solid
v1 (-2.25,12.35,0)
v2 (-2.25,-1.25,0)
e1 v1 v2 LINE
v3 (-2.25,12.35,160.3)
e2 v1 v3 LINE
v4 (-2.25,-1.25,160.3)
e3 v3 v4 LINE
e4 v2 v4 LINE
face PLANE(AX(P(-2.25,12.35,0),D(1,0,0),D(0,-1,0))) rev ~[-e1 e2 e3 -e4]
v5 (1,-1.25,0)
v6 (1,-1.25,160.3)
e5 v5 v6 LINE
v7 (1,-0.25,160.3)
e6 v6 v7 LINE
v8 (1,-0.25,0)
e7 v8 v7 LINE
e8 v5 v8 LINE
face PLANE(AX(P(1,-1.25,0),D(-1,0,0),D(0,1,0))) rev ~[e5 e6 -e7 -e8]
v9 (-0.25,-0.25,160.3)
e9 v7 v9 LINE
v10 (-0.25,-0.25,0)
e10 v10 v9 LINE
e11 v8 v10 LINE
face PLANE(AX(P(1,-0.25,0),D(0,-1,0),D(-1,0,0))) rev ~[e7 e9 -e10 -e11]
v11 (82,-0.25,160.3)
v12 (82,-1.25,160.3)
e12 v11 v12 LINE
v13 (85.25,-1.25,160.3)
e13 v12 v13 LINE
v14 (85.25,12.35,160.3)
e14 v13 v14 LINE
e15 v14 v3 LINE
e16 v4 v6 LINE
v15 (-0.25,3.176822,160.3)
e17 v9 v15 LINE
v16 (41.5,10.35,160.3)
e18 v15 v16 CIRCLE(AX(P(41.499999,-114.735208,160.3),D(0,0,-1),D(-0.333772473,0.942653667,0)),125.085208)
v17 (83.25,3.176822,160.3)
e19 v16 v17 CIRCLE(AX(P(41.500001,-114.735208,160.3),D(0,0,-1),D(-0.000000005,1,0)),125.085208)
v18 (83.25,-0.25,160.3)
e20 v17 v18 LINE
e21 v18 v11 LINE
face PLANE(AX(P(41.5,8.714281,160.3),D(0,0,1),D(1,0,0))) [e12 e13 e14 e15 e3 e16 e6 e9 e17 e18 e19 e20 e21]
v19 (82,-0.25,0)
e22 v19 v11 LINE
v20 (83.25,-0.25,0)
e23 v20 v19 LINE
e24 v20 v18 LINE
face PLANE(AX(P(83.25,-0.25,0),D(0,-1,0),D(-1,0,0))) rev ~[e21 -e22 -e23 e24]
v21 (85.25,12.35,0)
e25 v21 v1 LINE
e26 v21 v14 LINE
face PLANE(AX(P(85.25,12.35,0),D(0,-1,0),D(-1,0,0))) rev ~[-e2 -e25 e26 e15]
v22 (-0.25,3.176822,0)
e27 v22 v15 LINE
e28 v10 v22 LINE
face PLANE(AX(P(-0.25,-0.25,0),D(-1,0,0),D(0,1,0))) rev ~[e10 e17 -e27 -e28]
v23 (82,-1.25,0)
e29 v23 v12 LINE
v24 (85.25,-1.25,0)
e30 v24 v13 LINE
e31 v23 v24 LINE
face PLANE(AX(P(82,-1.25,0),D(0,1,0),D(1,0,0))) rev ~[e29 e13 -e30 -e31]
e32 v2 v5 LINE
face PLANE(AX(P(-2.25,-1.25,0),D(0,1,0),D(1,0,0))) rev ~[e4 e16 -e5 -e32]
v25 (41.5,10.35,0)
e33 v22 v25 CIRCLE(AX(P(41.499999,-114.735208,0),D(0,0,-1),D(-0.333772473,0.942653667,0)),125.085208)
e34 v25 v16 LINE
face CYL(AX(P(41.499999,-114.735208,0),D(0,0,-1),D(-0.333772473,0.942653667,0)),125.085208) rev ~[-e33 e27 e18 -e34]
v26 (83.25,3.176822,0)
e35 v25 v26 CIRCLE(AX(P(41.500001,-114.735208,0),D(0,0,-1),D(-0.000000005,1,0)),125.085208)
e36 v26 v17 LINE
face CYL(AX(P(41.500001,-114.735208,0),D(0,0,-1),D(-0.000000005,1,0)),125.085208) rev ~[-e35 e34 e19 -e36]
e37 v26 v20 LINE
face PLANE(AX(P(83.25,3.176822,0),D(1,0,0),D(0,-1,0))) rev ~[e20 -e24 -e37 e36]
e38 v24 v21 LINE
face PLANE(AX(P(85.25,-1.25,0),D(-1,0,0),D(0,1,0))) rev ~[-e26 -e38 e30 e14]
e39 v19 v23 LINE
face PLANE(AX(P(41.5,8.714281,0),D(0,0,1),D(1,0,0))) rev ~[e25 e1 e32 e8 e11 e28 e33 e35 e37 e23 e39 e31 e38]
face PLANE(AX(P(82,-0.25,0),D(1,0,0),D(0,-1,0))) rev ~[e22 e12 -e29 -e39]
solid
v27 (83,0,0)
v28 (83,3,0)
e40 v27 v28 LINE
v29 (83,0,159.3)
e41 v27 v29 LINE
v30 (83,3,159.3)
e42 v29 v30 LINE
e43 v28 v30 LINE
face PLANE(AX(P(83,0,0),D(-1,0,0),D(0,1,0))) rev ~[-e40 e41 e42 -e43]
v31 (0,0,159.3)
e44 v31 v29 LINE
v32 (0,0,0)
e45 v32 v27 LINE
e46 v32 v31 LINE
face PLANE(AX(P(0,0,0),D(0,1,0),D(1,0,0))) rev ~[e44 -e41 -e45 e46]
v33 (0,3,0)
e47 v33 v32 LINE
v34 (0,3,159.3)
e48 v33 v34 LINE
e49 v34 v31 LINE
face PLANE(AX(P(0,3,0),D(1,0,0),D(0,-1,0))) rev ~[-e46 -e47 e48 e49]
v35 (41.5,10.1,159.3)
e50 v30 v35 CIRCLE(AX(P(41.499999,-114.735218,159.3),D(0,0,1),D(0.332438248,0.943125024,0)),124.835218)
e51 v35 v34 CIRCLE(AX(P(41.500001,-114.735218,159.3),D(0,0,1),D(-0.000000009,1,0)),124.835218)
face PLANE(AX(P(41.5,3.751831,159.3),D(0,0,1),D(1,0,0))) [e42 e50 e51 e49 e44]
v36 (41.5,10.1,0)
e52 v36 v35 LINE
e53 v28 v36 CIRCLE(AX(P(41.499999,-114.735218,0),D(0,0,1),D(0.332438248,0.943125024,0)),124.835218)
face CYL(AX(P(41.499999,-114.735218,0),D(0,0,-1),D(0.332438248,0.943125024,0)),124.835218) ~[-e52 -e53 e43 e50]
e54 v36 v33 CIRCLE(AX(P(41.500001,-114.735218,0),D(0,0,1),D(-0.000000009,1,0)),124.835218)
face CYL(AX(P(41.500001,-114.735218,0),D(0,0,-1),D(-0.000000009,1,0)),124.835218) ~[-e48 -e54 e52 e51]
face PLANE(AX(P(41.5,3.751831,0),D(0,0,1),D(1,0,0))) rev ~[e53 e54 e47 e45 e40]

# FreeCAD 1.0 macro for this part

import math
import FreeCAD as App
import Part
import Sketcher
from FreeCAD import Vector
Q = App.Units.Quantity

doc = App.newDocument("Part")
params = doc.addObject("Spreadsheet::Sheet", "Params")
for row, (alias, value) in enumerate([
    ("sketch1_width", "83 mm"),
    ("sketch1_height", "3 mm"),
    ("pad1_length", "159.3 mm"),
    ("sketch2_height", "1 mm"),
    ("sketch2_width", "87.5 mm"),
    ("sketch2_height2", "13.6 mm"),
    ("pad2_length", "160.3 mm"),
], start=1):
    params.set(f"A{row}", alias)
    params.set(f"B{row}", "=" + value)
    params.setAlias(f"B{row}", alias)

body = doc.addObject("PartDesign::Body", "Body")

# Sketch on XY plane
sketch1 = body.newObject("Sketcher::SketchObject", "Sketch")
sketch1.AttachmentSupport = (doc.getObject("XY_Plane"), [""])
sketch1.MapMode = "FlatFace"
sketch1.addGeometry(Part.LineSegment(Vector(0, 3, 0), Vector(0, 0, 0)), False)
sketch1.addGeometry(Part.LineSegment(Vector(0, 0, 0), Vector(83, 0, 0)), False)
sketch1.addGeometry(Part.LineSegment(Vector(83, 0, 0), Vector(83, 3, 0)), False)
sketch1.addGeometry(Part.ArcOfCircle(Part.Circle(Vector(41.5, -114.7, 0), Vector(0, 0, 1), 124.8), math.radians(70.58), math.radians(90)), False)
sketch1.addGeometry(Part.ArcOfCircle(Part.Circle(Vector(41.5, -114.7, 0), Vector(0, 0, 1), 124.8), math.radians(90), math.radians(109.42)), False)
sketch1.addConstraint(Sketcher.Constraint("Coincident", 0, 2, 1, 1))
sketch1.addConstraint(Sketcher.Constraint("Coincident", 1, 2, 2, 1))
sketch1.addConstraint(Sketcher.Constraint("Coincident", 2, 2, 3, 1))
sketch1.addConstraint(Sketcher.Constraint("Tangent", 3, 2, 4, 1))
sketch1.addConstraint(Sketcher.Constraint("Coincident", 4, 2, 0, 1))
sketch1.addConstraint(Sketcher.Constraint("Vertical", 0))
sketch1.addConstraint(Sketcher.Constraint("Horizontal", 1))
sketch1.addConstraint(Sketcher.Constraint("Vertical", 2))
sketch1.addConstraint(Sketcher.Constraint("Coincident", 0, 2, -1, 1))
sketch1.addConstraint(Sketcher.Constraint("Equal", 3, 4))
sketch1.addConstraint(Sketcher.Constraint("Horizontal", 2, 2, 4, 2))
sketch1.addConstraint(Sketcher.Constraint("Vertical", 4, 3, 3, 2))
sketch1.addConstraint(Sketcher.Constraint("DistanceX", 1, 1, 1, 2, Q("83 mm")))
sketch1.addConstraint(Sketcher.Constraint("DistanceY", 0, 2, 0, 1, Q("3 mm")))
sketch1.addConstraint(Sketcher.Constraint("DistanceY", -1, 1, 3, 2, Q("10.1 mm")))
sketch1.setExpression("Constraints[12]", "Params.sketch1_width")
sketch1.setExpression("Constraints[13]", "Params.sketch1_height")
pad1 = body.newObject("PartDesign::Pad", "Pad")
pad1.Profile = sketch1
pad1.setExpression("Length", "Params.pad1_length")
body2 = doc.addObject("PartDesign::Body", "Body001")

# Sketch on XY plane
sketch2 = body2.newObject("Sketcher::SketchObject", "Sketch001")
sketch2.AttachmentSupport = (doc.getObject("XY_Plane001"), [""])
sketch2.MapMode = "FlatFace"
sketch2.addGeometry(Part.ArcOfCircle(Part.Circle(Vector(41.5, -114.7, 0), Vector(0, 0, 1), 125.1), math.radians(90), math.radians(109.5)), False)
sketch2.addGeometry(Part.ArcOfCircle(Part.Circle(Vector(41.5, -114.7, 0), Vector(0, 0, 1), 125.1), math.radians(70.5), math.radians(90)), False)
sketch2.addGeometry(Part.LineSegment(Vector(83.2, 3.2, 0), Vector(83.2, -0.2, 0)), False)
sketch2.addGeometry(Part.LineSegment(Vector(83.2, -0.2, 0), Vector(82, -0.2, 0)), False)
sketch2.addGeometry(Part.LineSegment(Vector(82, -0.2, 0), Vector(82, -1.2, 0)), False)
sketch2.addGeometry(Part.LineSegment(Vector(82, -1.2, 0), Vector(85.2, -1.2, 0)), False)
sketch2.addGeometry(Part.LineSegment(Vector(85.2, -1.2, 0), Vector(85.2, 12.3, 0)), False)
sketch2.addGeometry(Part.LineSegment(Vector(85.2, 12.3, 0), Vector(-2.2, 12.3, 0)), False)
sketch2.addGeometry(Part.LineSegment(Vector(-2.2, 12.3, 0), Vector(-2.2, -1.2, 0)), False)
sketch2.addGeometry(Part.LineSegment(Vector(-2.2, -1.2, 0), Vector(1, -1.2, 0)), False)
sketch2.addGeometry(Part.LineSegment(Vector(1, -1.2, 0), Vector(1, -0.2, 0)), False)
sketch2.addGeometry(Part.LineSegment(Vector(1, -0.2, 0), Vector(-0.2, -0.2, 0)), False)
sketch2.addGeometry(Part.LineSegment(Vector(-0.2, -0.2, 0), Vector(-0.2, 3.2, 0)), False)
sketch2.addConstraint(Sketcher.Constraint("Tangent", 0, 1, 1, 2))
sketch2.addConstraint(Sketcher.Constraint("Coincident", 1, 1, 2, 1))
sketch2.addConstraint(Sketcher.Constraint("Coincident", 2, 2, 3, 1))
sketch2.addConstraint(Sketcher.Constraint("Coincident", 3, 2, 4, 1))
sketch2.addConstraint(Sketcher.Constraint("Coincident", 4, 2, 5, 1))
sketch2.addConstraint(Sketcher.Constraint("Coincident", 5, 2, 6, 1))
sketch2.addConstraint(Sketcher.Constraint("Coincident", 6, 2, 7, 1))
sketch2.addConstraint(Sketcher.Constraint("Coincident", 7, 2, 8, 1))
sketch2.addConstraint(Sketcher.Constraint("Coincident", 8, 2, 9, 1))
sketch2.addConstraint(Sketcher.Constraint("Coincident", 9, 2, 10, 1))
sketch2.addConstraint(Sketcher.Constraint("Coincident", 10, 2, 11, 1))
sketch2.addConstraint(Sketcher.Constraint("Coincident", 11, 2, 12, 1))
sketch2.addConstraint(Sketcher.Constraint("Coincident", 12, 2, 0, 2))
sketch2.addConstraint(Sketcher.Constraint("Vertical", 2))
sketch2.addConstraint(Sketcher.Constraint("Horizontal", 3))
sketch2.addConstraint(Sketcher.Constraint("Vertical", 4))
sketch2.addConstraint(Sketcher.Constraint("Horizontal", 5))
sketch2.addConstraint(Sketcher.Constraint("Vertical", 6))
sketch2.addConstraint(Sketcher.Constraint("Horizontal", 7))
sketch2.addConstraint(Sketcher.Constraint("Vertical", 8))
sketch2.addConstraint(Sketcher.Constraint("Horizontal", 9))
sketch2.addConstraint(Sketcher.Constraint("Vertical", 10))
sketch2.addConstraint(Sketcher.Constraint("Horizontal", 11))
sketch2.addConstraint(Sketcher.Constraint("Vertical", 12))
sketch2.addConstraint(Sketcher.Constraint("Equal", 0, 1))
sketch2.addConstraint(Sketcher.Constraint("Horizontal", 5, 2, 8, 2))
sketch2.addConstraint(Sketcher.Constraint("Horizontal", 3, 2, 10, 2))
sketch2.addConstraint(Sketcher.Constraint("Horizontal", 1, 1, 12, 2))
sketch2.addConstraint(Sketcher.Constraint("Vertical", 1, 3, 0, 1))
sketch2.addConstraint(Sketcher.Constraint("Equal", 5, 9))
sketch2.addConstraint(Sketcher.Constraint("Equal", 3, 11))
sketch2.addConstraint(Sketcher.Constraint("DistanceY", 4, 2, 4, 1, Q("1 mm")))
sketch2.addConstraint(Sketcher.Constraint("DistanceX", 7, 2, 7, 1, Q("87.5 mm")))
sketch2.addConstraint(Sketcher.Constraint("DistanceY", 6, 1, 6, 2, Q("13.6 mm")))
sketch2.addConstraint(Sketcher.Constraint("DistanceX", -1, 1, 3, 2, Q("82 mm")))
sketch2.addConstraint(Sketcher.Constraint("DistanceX", -1, 1, 9, 2, Q("1 mm")))
sketch2.addConstraint(Sketcher.Constraint("DistanceX", 2, 2, 5, 2, Q("2 mm")))
sketch2.addConstraint(Sketcher.Constraint("DistanceY", 0, 1, 7, 2, Q("2 mm")))
sketch2.addConstraint(Sketcher.Constraint("DistanceY", -1, 1, 0, 1, Q("10.35 mm")))
sketch2.addConstraint(Sketcher.Constraint("Radius", 0, Q("125.085208 mm")))
sketch2.setExpression("Constraints[31]", "Params.sketch2_height")
sketch2.setExpression("Constraints[32]", "Params.sketch2_width")
sketch2.setExpression("Constraints[33]", "Params.sketch2_height2")
pad2 = body2.newObject("PartDesign::Pad", "Pad001")
pad2.Profile = sketch2
pad2.setExpression("Length", "Params.pad2_length")

doc.recompute()
